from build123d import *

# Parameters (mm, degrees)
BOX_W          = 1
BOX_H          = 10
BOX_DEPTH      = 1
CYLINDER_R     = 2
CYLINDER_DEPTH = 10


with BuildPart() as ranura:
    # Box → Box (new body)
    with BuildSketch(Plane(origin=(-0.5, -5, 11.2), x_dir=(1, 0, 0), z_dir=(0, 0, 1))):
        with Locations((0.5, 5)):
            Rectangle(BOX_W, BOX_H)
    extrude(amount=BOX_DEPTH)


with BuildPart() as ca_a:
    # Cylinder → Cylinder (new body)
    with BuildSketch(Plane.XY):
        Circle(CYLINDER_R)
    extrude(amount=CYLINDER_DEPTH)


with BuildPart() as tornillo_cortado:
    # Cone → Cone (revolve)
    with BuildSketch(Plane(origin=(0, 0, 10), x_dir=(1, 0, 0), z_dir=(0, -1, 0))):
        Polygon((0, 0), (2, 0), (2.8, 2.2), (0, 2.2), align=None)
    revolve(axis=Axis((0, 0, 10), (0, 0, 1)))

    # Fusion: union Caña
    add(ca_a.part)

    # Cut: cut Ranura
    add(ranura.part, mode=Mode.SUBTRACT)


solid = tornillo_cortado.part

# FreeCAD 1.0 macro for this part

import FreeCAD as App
import Part
import Sketcher
from FreeCAD import Vector

doc = App.newDocument("Part")
body = doc.addObject("PartDesign::Body", "Body")

sketch1 = doc.addObject("Sketcher::SketchObject", "Sketch")
body.addObject(sketch1)
sketch1.AttachmentSupport = (doc.XY_Plane, [""])
sketch1.MapMode = "FlatFace"
sketch1.AttachmentOffset = App.Placement(Vector(0, 0, 11.2), App.Rotation())
sketch1.addGeometry(Part.LineSegment(Vector(-0.5, 5, 0), Vector(-0.5, -5, 0)), False)
sketch1.addGeometry(Part.LineSegment(Vector(-0.5, -5, 0), Vector(0.5, -5, 0)), False)
sketch1.addGeometry(Part.LineSegment(Vector(0.5, -5, 0), Vector(0.5, 5, 0)), False)
sketch1.addGeometry(Part.LineSegment(Vector(0.5, 5, 0), Vector(-0.5, 5, 0)), False)
sketch1.addConstraint(Sketcher.Constraint("Coincident", 0, 2, 1, 1))
sketch1.addConstraint(Sketcher.Constraint("Coincident", 1, 2, 2, 1))
sketch1.addConstraint(Sketcher.Constraint("Coincident", 2, 2, 3, 1))
sketch1.addConstraint(Sketcher.Constraint("Coincident", 3, 2, 0, 1))
sketch1.addConstraint(Sketcher.Constraint("Vertical", 0))
sketch1.addConstraint(Sketcher.Constraint("Horizontal", 1))
sketch1.addConstraint(Sketcher.Constraint("Vertical", 2))
sketch1.addConstraint(Sketcher.Constraint("Horizontal", 3))
sketch1.addConstraint(Sketcher.Constraint("Symmetric", 0, 2, 2, 2, -1, 1))
sketch1.addConstraint(Sketcher.Constraint("DistanceX", 1, 1, 1, 2, 1.0))
sketch1.addConstraint(Sketcher.Constraint("DistanceY", 0, 2, 0, 1, 10.0))
pad1 = doc.addObject("PartDesign::Pad", "Pad")
body.addObject(pad1)
pad1.Profile = sketch1
pad1.Length = 1
body2 = doc.addObject("PartDesign::Body", "Body001")

sketch2 = doc.addObject("Sketcher::SketchObject", "Sketch001")
body2.addObject(sketch2)
sketch2.AttachmentSupport = (doc.getObject("XY_Plane001"), [""])
sketch2.MapMode = "FlatFace"
sketch2.addGeometry(Part.Circle(Vector(0, 0, 0), Vector(0, 0, 1), 2), False)
sketch2.addConstraint(Sketcher.Constraint("Coincident", 0, 3, -1, 1))
sketch2.addConstraint(Sketcher.Constraint("Diameter", 0, 4.0))
pad2 = doc.addObject("PartDesign::Pad", "Pad001")
body2.addObject(pad2)
pad2.Profile = sketch2
pad2.Length = 10
body3 = doc.addObject("PartDesign::Body", "Body002")

sketch3 = doc.addObject("Sketcher::SketchObject", "Sketch002")
body3.addObject(sketch3)
sketch3.AttachmentSupport = (doc.getObject("XZ_Plane002"), [""])
sketch3.MapMode = "FlatFace"
sketch3.addGeometry(Part.LineSegment(Vector(0, 10, 0), Vector(2, 10, 0)), False)
sketch3.addGeometry(Part.LineSegment(Vector(2, 10, 0), Vector(2.8, 12.2, 0)), False)
sketch3.addGeometry(Part.LineSegment(Vector(2.8, 12.2, 0), Vector(0, 12.2, 0)), False)
sketch3.addGeometry(Part.LineSegment(Vector(0, 12.2, 0), Vector(0, 10, 0)), False)
sketch3.addConstraint(Sketcher.Constraint("Coincident", 0, 2, 1, 1))
sketch3.addConstraint(Sketcher.Constraint("Coincident", 1, 2, 2, 1))
sketch3.addConstraint(Sketcher.Constraint("Coincident", 2, 2, 3, 1))
sketch3.addConstraint(Sketcher.Constraint("Coincident", 3, 2, 0, 1))
sketch3.addConstraint(Sketcher.Constraint("Horizontal", 0))
sketch3.addConstraint(Sketcher.Constraint("Horizontal", 2))
sketch3.addConstraint(Sketcher.Constraint("Vertical", 3))
sketch3.addConstraint(Sketcher.Constraint("PointOnObject", 2, 2, -2))
sketch3.addConstraint(Sketcher.Constraint("DistanceX", 0, 1, 0, 2, 2.0))
sketch3.addConstraint(Sketcher.Constraint("DistanceX", 2, 2, 2, 1, 2.8))
sketch3.addConstraint(Sketcher.Constraint("DistanceY", 3, 2, 3, 1, 2.2))
sketch3.addConstraint(Sketcher.Constraint("DistanceY", -1, 1, 0, 2, 10.0))
revolution = doc.addObject("PartDesign::Revolution", "Revolution")
body3.addObject(revolution)
revolution.Profile = sketch3
revolution.ReferenceAxis = (sketch3, ["V_Axis"])
revolution.Angle = 360
doc.recompute()

boolean = doc.addObject("PartDesign::Boolean", "Boolean")
body3.addObject(boolean)
boolean.Type = "Fuse"
boolean.addObjects([body2])
doc.recompute()

boolean2 = doc.addObject("PartDesign::Boolean", "Boolean001")
body3.addObject(boolean2)
boolean2.Type = "Cut"
boolean2.addObjects([body])

doc.recompute()
